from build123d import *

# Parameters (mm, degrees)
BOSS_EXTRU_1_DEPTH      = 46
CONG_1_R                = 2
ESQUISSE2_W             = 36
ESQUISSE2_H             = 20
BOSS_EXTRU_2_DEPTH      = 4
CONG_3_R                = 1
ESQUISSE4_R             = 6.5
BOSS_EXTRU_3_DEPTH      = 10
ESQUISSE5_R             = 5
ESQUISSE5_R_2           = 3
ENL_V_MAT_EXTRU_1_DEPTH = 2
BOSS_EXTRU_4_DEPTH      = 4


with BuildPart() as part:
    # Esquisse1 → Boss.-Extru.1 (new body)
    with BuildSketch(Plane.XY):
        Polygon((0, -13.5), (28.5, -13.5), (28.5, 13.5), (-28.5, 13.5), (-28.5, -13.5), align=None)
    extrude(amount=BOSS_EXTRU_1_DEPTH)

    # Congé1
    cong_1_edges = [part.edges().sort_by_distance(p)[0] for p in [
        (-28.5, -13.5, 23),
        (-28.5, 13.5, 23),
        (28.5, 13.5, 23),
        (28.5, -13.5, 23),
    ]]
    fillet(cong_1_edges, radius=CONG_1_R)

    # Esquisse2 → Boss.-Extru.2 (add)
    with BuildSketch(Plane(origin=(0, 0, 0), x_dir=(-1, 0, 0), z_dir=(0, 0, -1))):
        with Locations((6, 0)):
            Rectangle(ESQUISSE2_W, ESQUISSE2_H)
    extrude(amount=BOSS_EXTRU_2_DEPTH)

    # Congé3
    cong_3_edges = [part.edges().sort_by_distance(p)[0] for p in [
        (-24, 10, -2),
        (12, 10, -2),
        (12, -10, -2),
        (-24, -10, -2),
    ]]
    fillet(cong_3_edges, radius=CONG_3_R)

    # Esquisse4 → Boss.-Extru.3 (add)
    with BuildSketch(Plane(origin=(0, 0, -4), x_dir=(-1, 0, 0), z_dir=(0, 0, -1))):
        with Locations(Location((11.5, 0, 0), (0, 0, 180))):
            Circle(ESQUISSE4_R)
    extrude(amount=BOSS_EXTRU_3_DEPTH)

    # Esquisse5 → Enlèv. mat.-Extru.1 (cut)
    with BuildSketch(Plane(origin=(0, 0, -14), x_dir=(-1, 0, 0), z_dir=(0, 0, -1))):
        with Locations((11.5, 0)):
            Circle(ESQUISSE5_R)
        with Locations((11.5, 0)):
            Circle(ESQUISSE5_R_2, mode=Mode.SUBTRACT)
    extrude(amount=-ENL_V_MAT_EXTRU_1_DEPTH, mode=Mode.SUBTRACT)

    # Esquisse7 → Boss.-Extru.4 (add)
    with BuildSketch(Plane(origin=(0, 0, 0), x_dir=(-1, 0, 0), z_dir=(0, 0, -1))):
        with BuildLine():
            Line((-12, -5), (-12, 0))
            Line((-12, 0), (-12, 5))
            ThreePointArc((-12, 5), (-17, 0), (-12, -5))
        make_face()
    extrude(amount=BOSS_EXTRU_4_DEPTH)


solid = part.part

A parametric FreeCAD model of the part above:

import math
import FreeCAD as App
import Part
import Sketcher
from FreeCAD import Vector
Q = App.Units.Quantity


def edges_at(feature, points):
    """Names of the edges that pass closest to the given points."""
    edges = feature.Shape.Edges
    near = lambda p: min(range(len(edges)), key=lambda i: edges[i].distToShape(Part.Vertex(*p))[0])
    return sorted({f"Edge{near(p) + 1}" for p in points})


def add_polygon(sketch, points):
    """Adds a closed chain of lines whose ends are joined by coincident constraints."""
    first, n = sketch.GeometryCount, len(points)
    for a, b in zip(points, points[1:] + points[:1]):
        sketch.addGeometry(Part.LineSegment(App.Vector(*a, 0), App.Vector(*b, 0)), False)
    for i in range(n):
        sketch.addConstraint(Sketcher.Constraint("Coincident", first + i, 2, first + (i + 1) % n, 1))

doc = App.newDocument("Part")
params = doc.addObject("Spreadsheet::Sheet", "Params")
for row, (alias, value) in enumerate([
    ("sketch1_width", "57 mm"),
    ("sketch1_height", "27 mm"),
    ("pad1_length", "46 mm"),
    ("fillet_radius", "2 mm"),
    ("sketch2_width", "36 mm"),
    ("sketch2_height", "20 mm"),
    ("pad2_length", "4 mm"),
    ("fillet2_radius", "1 mm"),
    ("sketch3_diameter", "13 mm"),
    ("pad3_length", "10 mm"),
    ("sketch4_diameter", "10 mm"),
    ("sketch4_diameter2", "6 mm"),
    ("pocket1_length", "2 mm"),
    ("sketch5_radius", "5 mm"),
    ("pad4_length", "4 mm"),
], start=1):
    params.set(f"A{row}", alias)
    params.set(f"B{row}", "=" + value)
    params.setAlias(f"B{row}", alias)

body = doc.addObject("PartDesign::Body", "Body")

# Sketch on XY plane
sketch1 = body.newObject("Sketcher::SketchObject", "Sketch")
sketch1.AttachmentSupport = (doc.getObject("XY_Plane"), [""])
sketch1.MapMode = "FlatFace"
add_polygon(sketch1, [(28, -14), (28, 14), (-28, 14), (-28, -14)])  # lines 0-3
sketch1.addConstraint(Sketcher.Constraint("Vertical", 0))
sketch1.addConstraint(Sketcher.Constraint("Horizontal", 1))
sketch1.addConstraint(Sketcher.Constraint("Vertical", 2))
sketch1.addConstraint(Sketcher.Constraint("Horizontal", 3))
sketch1.addConstraint(Sketcher.Constraint("Symmetric", 0, 2, 2, 2, -1, 1))
sketch1.addConstraint(Sketcher.Constraint("DistanceX", 1, 2, 1, 1, Q("57 mm")))
sketch1.addConstraint(Sketcher.Constraint("DistanceY", 0, 1, 0, 2, Q("27 mm")))
sketch1.setExpression("Constraints[9]", "Params.sketch1_width")
sketch1.setExpression("Constraints[10]", "Params.sketch1_height")
pad1 = body.newObject("PartDesign::Pad", "Pad")
pad1.Profile = sketch1
pad1.setExpression("Length", "Params.pad1_length")
doc.recompute()

fillet = body.newObject("PartDesign::Fillet", "Fillet")
fillet.Base = (pad1, edges_at(pad1, [
    (-28.5, -13.5, 23),
    (-28.5, 13.5, 23),
    (28.5, 13.5, 23),
    (28.5, -13.5, 23),
]))
fillet.setExpression("Radius", "Params.fillet_radius")

# Sketch on XY plane
sketch2 = body.newObject("Sketcher::SketchObject", "Sketch001")
sketch2.AttachmentSupport = (doc.getObject("XY_Plane"), [""])
sketch2.MapMode = "FlatFace"
add_polygon(sketch2, [(12, 10), (12, -10), (-24, -10), (-24, 10)])  # lines 0-3
sketch2.addConstraint(Sketcher.Constraint("Vertical", 0))
sketch2.addConstraint(Sketcher.Constraint("Horizontal", 1))
sketch2.addConstraint(Sketcher.Constraint("Vertical", 2))
sketch2.addConstraint(Sketcher.Constraint("Horizontal", 3))
sketch2.addConstraint(Sketcher.Constraint("DistanceX", 1, 2, 1, 1, Q("36 mm")))
sketch2.addConstraint(Sketcher.Constraint("DistanceY", 0, 2, 0, 1, Q("20 mm")))
sketch2.addConstraint(Sketcher.Constraint("DistanceX", -1, 1, 0, 2, Q("12 mm")))
sketch2.addConstraint(Sketcher.Constraint("DistanceY", 0, 2, -1, 1, Q("10 mm")))
sketch2.setExpression("Constraints[8]", "Params.sketch2_width")
sketch2.setExpression("Constraints[9]", "Params.sketch2_height")
pad2 = body.newObject("PartDesign::Pad", "Pad001")
pad2.Profile = sketch2
pad2.setExpression("Length", "Params.pad2_length")
pad2.Reversed = True
doc.recompute()

fillet2 = body.newObject("PartDesign::Fillet", "Fillet001")
fillet2.Base = (pad2, edges_at(pad2, [
    (-24, 10, -2),
    (12, 10, -2),
    (12, -10, -2),
    (-24, -10, -2),
]))
fillet2.setExpression("Radius", "Params.fillet2_radius")

# Sketch on XY plane
sketch3 = body.newObject("Sketcher::SketchObject", "Sketch002")
sketch3.AttachmentSupport = (doc.getObject("XY_Plane"), [""])
sketch3.MapMode = "FlatFace"
sketch3.AttachmentOffset = App.Placement(Vector(0, 0, -4), App.Rotation())
sketch3.addGeometry(Part.Circle(Vector(-12, 0, 0), Vector(0, 0, 1), 6), False)
sketch3.addConstraint(Sketcher.Constraint("PointOnObject", 0, 3, -1))
sketch3.addConstraint(Sketcher.Constraint("Diameter", 0, Q("13 mm")))
sketch3.addConstraint(Sketcher.Constraint("DistanceX", 0, 3, -1, 1, Q("11.5 mm")))
sketch3.setExpression("Constraints[1]", "Params.sketch3_diameter")
pad3 = body.newObject("PartDesign::Pad", "Pad002")
pad3.Profile = sketch3
pad3.setExpression("Length", "Params.pad3_length")
pad3.Reversed = True

# Sketch on XY plane
sketch4 = body.newObject("Sketcher::SketchObject", "Sketch003")
sketch4.AttachmentSupport = (doc.getObject("XY_Plane"), [""])
sketch4.MapMode = "FlatFace"
sketch4.AttachmentOffset = App.Placement(Vector(0, 0, -14), App.Rotation())
sketch4.addGeometry(Part.Circle(Vector(-11.5, 0, 0), Vector(0, 0, 1), 5), False)
sketch4.addGeometry(Part.Circle(Vector(-11.5, 0, 0), Vector(0, 0, 1), 3), False)
sketch4.addConstraint(Sketcher.Constraint("Coincident", 1, 3, 0, 3))
sketch4.addConstraint(Sketcher.Constraint("PointOnObject", 0, 3, -1))
sketch4.addConstraint(Sketcher.Constraint("Diameter", 0, Q("10 mm")))
sketch4.addConstraint(Sketcher.Constraint("Diameter", 1, Q("6 mm")))
sketch4.addConstraint(Sketcher.Constraint("DistanceX", 0, 3, -1, 1, Q("11.5 mm")))
sketch4.setExpression("Constraints[2]", "Params.sketch4_diameter")
sketch4.setExpression("Constraints[3]", "Params.sketch4_diameter2")
pocket1 = body.newObject("PartDesign::Pocket", "Pocket")
pocket1.Profile = sketch4
pocket1.setExpression("Length", "Params.pocket1_length")
pocket1.Reversed = True

# Sketch on XY plane
sketch5 = body.newObject("Sketcher::SketchObject", "Sketch004")
sketch5.AttachmentSupport = (doc.getObject("XY_Plane"), [""])
sketch5.MapMode = "FlatFace"
sketch5.addGeometry(Part.LineSegment(Vector(12, -5, 0), Vector(12, 5, 0)), False)
sketch5.addGeometry(Part.ArcOfCircle(Part.Circle(Vector(12, 0, 0), Vector(0, 0, 1), 5), math.radians(-90), math.radians(90)), False)
sketch5.addConstraint(Sketcher.Constraint("Coincident", 0, 1, 1, 1))
sketch5.addConstraint(Sketcher.Constraint("Coincident", 1, 2, 0, 2))
sketch5.addConstraint(Sketcher.Constraint("Vertical", 0))
sketch5.addConstraint(Sketcher.Constraint("PointOnObject", 1, 3, -1))
sketch5.addConstraint(Sketcher.Constraint("Vertical", 1, 3, 0, 1))
sketch5.addConstraint(Sketcher.Constraint("Radius", 1, Q("5 mm")))
sketch5.addConstraint(Sketcher.Constraint("DistanceX", -1, 1, 1, 3, Q("12 mm")))
sketch5.setExpression("Constraints[5]", "Params.sketch5_radius")
pad4 = body.newObject("PartDesign::Pad", "Pad003")
pad4.Profile = sketch5
pad4.setExpression("Length", "Params.pad4_length")
pad4.Reversed = True

doc.recompute()
